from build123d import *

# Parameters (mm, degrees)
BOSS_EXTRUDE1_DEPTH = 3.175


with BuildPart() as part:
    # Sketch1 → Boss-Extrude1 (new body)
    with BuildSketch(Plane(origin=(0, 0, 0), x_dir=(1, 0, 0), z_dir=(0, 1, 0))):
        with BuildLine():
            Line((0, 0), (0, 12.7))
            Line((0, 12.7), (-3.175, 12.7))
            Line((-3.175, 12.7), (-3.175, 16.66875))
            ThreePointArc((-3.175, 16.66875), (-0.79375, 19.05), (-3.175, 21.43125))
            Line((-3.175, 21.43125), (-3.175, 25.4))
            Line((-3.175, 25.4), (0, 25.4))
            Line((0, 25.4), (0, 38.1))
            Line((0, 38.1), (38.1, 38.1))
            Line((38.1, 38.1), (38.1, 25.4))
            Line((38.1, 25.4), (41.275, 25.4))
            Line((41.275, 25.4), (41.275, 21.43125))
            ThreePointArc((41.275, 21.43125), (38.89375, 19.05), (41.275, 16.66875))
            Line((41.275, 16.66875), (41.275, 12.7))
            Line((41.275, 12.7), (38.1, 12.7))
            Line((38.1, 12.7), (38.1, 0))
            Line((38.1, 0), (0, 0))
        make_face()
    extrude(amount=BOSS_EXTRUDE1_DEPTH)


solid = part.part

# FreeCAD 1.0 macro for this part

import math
import FreeCAD as App
import Part
import Sketcher
Q = App.Units.Quantity

doc = App.newDocument("Part")
body = doc.addObject("PartDesign::Body", "Body")

# Sketch on XZ plane
sketch1 = body.newObject("Sketcher::SketchObject", "Sketch")
sketch1.AttachmentSupport = (doc.getObject("XZ_Plane"), [""])
sketch1.MapMode = "FlatFace"
sketch1.addGeometry(Part.LineSegment(App.Vector(0, -12.7, 0), App.Vector(0, 0, 0)), False)
sketch1.addGeometry(Part.LineSegment(App.Vector(0, 0, 0), App.Vector(38.1, 0, 0)), False)
sketch1.addGeometry(Part.LineSegment(App.Vector(38.1, 0, 0), App.Vector(38.1, -12.7, 0)), False)
sketch1.addGeometry(Part.LineSegment(App.Vector(38.1, -12.7, 0), App.Vector(41.275, -12.7, 0)), False)
sketch1.addGeometry(Part.LineSegment(App.Vector(41.275, -12.7, 0), App.Vector(41.275, -16.66875, 0)), False)
sketch1.addGeometry(Part.ArcOfCircle(Part.Circle(App.Vector(41.275, -19.05, 0), App.Vector(0, 0, 1), 2.38125), math.radians(90), math.radians(270)), False)
sketch1.addGeometry(Part.LineSegment(App.Vector(41.275, -21.43125, 0), App.Vector(41.275, -25.4, 0)), False)
sketch1.addGeometry(Part.LineSegment(App.Vector(41.275, -25.4, 0), App.Vector(38.1, -25.4, 0)), False)
sketch1.addGeometry(Part.LineSegment(App.Vector(38.1, -25.4, 0), App.Vector(38.1, -38.1, 0)), False)
sketch1.addGeometry(Part.LineSegment(App.Vector(38.1, -38.1, 0), App.Vector(0, -38.1, 0)), False)
sketch1.addGeometry(Part.LineSegment(App.Vector(0, -38.1, 0), App.Vector(0, -25.4, 0)), False)
sketch1.addGeometry(Part.LineSegment(App.Vector(0, -25.4, 0), App.Vector(-3.175, -25.4, 0)), False)
sketch1.addGeometry(Part.LineSegment(App.Vector(-3.175, -25.4, 0), App.Vector(-3.175, -21.43125, 0)), False)
sketch1.addGeometry(Part.ArcOfCircle(Part.Circle(App.Vector(-3.175, -19.05, 0), App.Vector(0, 0, 1), 2.38125), math.radians(-90), math.radians(90)), False)
sketch1.addGeometry(Part.LineSegment(App.Vector(-3.175, -16.66875, 0), App.Vector(-3.175, -12.7, 0)), False)
sketch1.addGeometry(Part.LineSegment(App.Vector(-3.175, -12.7, 0), App.Vector(0, -12.7, 0)), False)
sketch1.addConstraint(Sketcher.Constraint("Coincident", 0, 2, 1, 1))
sketch1.addConstraint(Sketcher.Constraint("Coincident", 1, 2, 2, 1))
sketch1.addConstraint(Sketcher.Constraint("Coincident", 2, 2, 3, 1))
sketch1.addConstraint(Sketcher.Constraint("Coincident", 3, 2, 4, 1))
sketch1.addConstraint(Sketcher.Constraint("Coincident", 4, 2, 5, 1))
sketch1.addConstraint(Sketcher.Constraint("Coincident", 5, 2, 6, 1))
sketch1.addConstraint(Sketcher.Constraint("Coincident", 6, 2, 7, 1))
sketch1.addConstraint(Sketcher.Constraint("Coincident", 7, 2, 8, 1))
sketch1.addConstraint(Sketcher.Constraint("Coincident", 8, 2, 9, 1))
sketch1.addConstraint(Sketcher.Constraint("Coincident", 9, 2, 10, 1))
sketch1.addConstraint(Sketcher.Constraint("Coincident", 10, 2, 11, 1))
sketch1.addConstraint(Sketcher.Constraint("Coincident", 11, 2, 12, 1))
sketch1.addConstraint(Sketcher.Constraint("Coincident", 12, 2, 13, 1))
sketch1.addConstraint(Sketcher.Constraint("Coincident", 13, 2, 14, 1))
sketch1.addConstraint(Sketcher.Constraint("Coincident", 14, 2, 15, 1))
sketch1.addConstraint(Sketcher.Constraint("Coincident", 15, 2, 0, 1))
sketch1.addConstraint(Sketcher.Constraint("Vertical", 0))
sketch1.addConstraint(Sketcher.Constraint("Horizontal", 1))
sketch1.addConstraint(Sketcher.Constraint("Vertical", 2))
sketch1.addConstraint(Sketcher.Constraint("Horizontal", 3))
sketch1.addConstraint(Sketcher.Constraint("Vertical", 4))
sketch1.addConstraint(Sketcher.Constraint("Vertical", 6))
sketch1.addConstraint(Sketcher.Constraint("Horizontal", 7))
sketch1.addConstraint(Sketcher.Constraint("Vertical", 8))
sketch1.addConstraint(Sketcher.Constraint("Horizontal", 9))
sketch1.addConstraint(Sketcher.Constraint("Vertical", 10))
sketch1.addConstraint(Sketcher.Constraint("Horizontal", 11))
sketch1.addConstraint(Sketcher.Constraint("Vertical", 12))
sketch1.addConstraint(Sketcher.Constraint("Vertical", 14))
sketch1.addConstraint(Sketcher.Constraint("Horizontal", 15))
sketch1.addConstraint(Sketcher.Constraint("Coincident", 0, 2, -1, 1))
sketch1.addConstraint(Sketcher.Constraint("Equal", 5, 13))
sketch1.addConstraint(Sketcher.Constraint("PointOnObject", 9, 2, -2))
sketch1.addConstraint(Sketcher.Constraint("Horizontal", 5, 3, 13, 3))
sketch1.addConstraint(Sketcher.Constraint("Horizontal", 7, 2, 10, 2))
sketch1.addConstraint(Sketcher.Constraint("Horizontal", 3, 2, 14, 2))
sketch1.addConstraint(Sketcher.Constraint("Vertical", 5, 3, 3, 2))
sketch1.addConstraint(Sketcher.Constraint("Vertical", 4, 2, 5, 2))
sketch1.addConstraint(Sketcher.Constraint("Vertical", 2, 2, 7, 2))
sketch1.addConstraint(Sketcher.Constraint("Vertical", 13, 3, 11, 2))
sketch1.addConstraint(Sketcher.Constraint("Vertical", 12, 2, 13, 2))
sketch1.addConstraint(Sketcher.Constraint("Equal", 7, 11))
sketch1.addConstraint(Sketcher.Constraint("Equal", 4, 6))
sketch1.addConstraint(Sketcher.Constraint("Equal", 2, 8))
sketch1.addConstraint(Sketcher.Constraint("DistanceX", 1, 1, 1, 2, Q("1.5 in")))
sketch1.addConstraint(Sketcher.Constraint("DistanceY", 0, 1, 0, 2, Q("0.5 in")))
sketch1.addConstraint(Sketcher.Constraint("DistanceY", 6, 2, -1, 1, Q("1 in")))
sketch1.addConstraint(Sketcher.Constraint("Radius", 5, Q("0.09375 in")))
sketch1.addConstraint(Sketcher.Constraint("DistanceX", 3, 1, 3, 2, Q("0.125 in")))
pad1 = body.newObject("PartDesign::Pad", "Pad")
pad1.Profile = sketch1
pad1.Length = Q("0.125 in")
pad1.Reversed = True

doc.recompute()
